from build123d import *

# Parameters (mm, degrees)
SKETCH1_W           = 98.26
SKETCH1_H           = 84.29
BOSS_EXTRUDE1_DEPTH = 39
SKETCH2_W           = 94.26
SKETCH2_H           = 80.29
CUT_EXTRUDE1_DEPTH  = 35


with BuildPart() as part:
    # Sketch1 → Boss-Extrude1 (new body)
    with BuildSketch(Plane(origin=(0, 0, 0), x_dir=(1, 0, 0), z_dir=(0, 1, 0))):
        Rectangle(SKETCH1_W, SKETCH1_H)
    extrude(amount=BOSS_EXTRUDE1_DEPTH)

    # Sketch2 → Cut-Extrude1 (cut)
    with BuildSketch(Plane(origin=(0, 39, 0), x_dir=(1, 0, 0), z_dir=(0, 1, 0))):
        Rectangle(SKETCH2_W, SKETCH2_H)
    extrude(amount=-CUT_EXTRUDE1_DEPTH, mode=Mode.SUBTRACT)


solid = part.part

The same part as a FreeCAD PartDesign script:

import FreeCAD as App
import Part
import Sketcher

V = App.Vector


def add_polygon(sketch, points):
    """Adds a closed chain of lines whose ends are joined by coincident constraints."""
    first, n = sketch.GeometryCount, len(points)
    for a, b in zip(points, points[1:] + points[:1]):
        sketch.addGeometry(Part.LineSegment(App.Vector(*a, 0), App.Vector(*b, 0)), False)
    for i in range(n):
        sketch.addConstraint(Sketcher.Constraint("Coincident", first + i, 2, first + (i + 1) % n, 1))

doc = App.newDocument("Part")
body = doc.addObject("PartDesign::Body", "Body")

# Sketch on XZ plane
sketch1 = doc.addObject("Sketcher::SketchObject", "Sketch")
body.addObject(sketch1)
sketch1.AttachmentSupport = (doc.XZ_Plane, [""])
sketch1.MapMode = "FlatFace"
add_polygon(sketch1, [(-49.13, -42.145), (-49.13, 42.145), (49.13, 42.145), (49.13, -42.145)])  # lines 0-3
sketch1.addConstraint([
    Sketcher.Constraint("Vertical", 0),
    Sketcher.Constraint("Horizontal", 1),
    Sketcher.Constraint("Vertical", 2),
    Sketcher.Constraint("Horizontal", 3),
    Sketcher.Constraint("Symmetric", 0, 2, 2, 2, -1, 1),
    Sketcher.Constraint("DistanceX", 1, 1, 1, 2, 98.26),
    Sketcher.Constraint("DistanceY", 0, 1, 0, 2, 84.29),
])
pad1 = doc.addObject("PartDesign::Pad", "Pad")
body.addObject(pad1)
pad1.Profile = sketch1
pad1.Length = 39
pad1.Reversed = True

# Sketch on XZ plane
sketch2 = doc.addObject("Sketcher::SketchObject", "Sketch001")
body.addObject(sketch2)
sketch2.AttachmentSupport = (doc.XZ_Plane, [""])
sketch2.MapMode = "FlatFace"
sketch2.AttachmentOffset = App.Placement(V(0, 0, -39), App.Rotation())
add_polygon(sketch2, [(-47.13, -40.145), (-47.13, 40.145), (47.13, 40.145), (47.13, -40.145)])  # lines 0-3
sketch2.addConstraint([
    Sketcher.Constraint("Vertical", 0),
    Sketcher.Constraint("Horizontal", 1),
    Sketcher.Constraint("Vertical", 2),
    Sketcher.Constraint("Horizontal", 3),
    Sketcher.Constraint("Symmetric", 0, 2, 2, 2, -1, 1),
    Sketcher.Constraint("DistanceX", 1, 1, 1, 2, 94.26),
    Sketcher.Constraint("DistanceY", 0, 1, 0, 2, 80.29),
])
pocket1 = doc.addObject("PartDesign::Pocket", "Pocket")
body.addObject(pocket1)
pocket1.Profile = sketch2
pocket1.Length = 35
pocket1.Reversed = True

doc.recompute()
